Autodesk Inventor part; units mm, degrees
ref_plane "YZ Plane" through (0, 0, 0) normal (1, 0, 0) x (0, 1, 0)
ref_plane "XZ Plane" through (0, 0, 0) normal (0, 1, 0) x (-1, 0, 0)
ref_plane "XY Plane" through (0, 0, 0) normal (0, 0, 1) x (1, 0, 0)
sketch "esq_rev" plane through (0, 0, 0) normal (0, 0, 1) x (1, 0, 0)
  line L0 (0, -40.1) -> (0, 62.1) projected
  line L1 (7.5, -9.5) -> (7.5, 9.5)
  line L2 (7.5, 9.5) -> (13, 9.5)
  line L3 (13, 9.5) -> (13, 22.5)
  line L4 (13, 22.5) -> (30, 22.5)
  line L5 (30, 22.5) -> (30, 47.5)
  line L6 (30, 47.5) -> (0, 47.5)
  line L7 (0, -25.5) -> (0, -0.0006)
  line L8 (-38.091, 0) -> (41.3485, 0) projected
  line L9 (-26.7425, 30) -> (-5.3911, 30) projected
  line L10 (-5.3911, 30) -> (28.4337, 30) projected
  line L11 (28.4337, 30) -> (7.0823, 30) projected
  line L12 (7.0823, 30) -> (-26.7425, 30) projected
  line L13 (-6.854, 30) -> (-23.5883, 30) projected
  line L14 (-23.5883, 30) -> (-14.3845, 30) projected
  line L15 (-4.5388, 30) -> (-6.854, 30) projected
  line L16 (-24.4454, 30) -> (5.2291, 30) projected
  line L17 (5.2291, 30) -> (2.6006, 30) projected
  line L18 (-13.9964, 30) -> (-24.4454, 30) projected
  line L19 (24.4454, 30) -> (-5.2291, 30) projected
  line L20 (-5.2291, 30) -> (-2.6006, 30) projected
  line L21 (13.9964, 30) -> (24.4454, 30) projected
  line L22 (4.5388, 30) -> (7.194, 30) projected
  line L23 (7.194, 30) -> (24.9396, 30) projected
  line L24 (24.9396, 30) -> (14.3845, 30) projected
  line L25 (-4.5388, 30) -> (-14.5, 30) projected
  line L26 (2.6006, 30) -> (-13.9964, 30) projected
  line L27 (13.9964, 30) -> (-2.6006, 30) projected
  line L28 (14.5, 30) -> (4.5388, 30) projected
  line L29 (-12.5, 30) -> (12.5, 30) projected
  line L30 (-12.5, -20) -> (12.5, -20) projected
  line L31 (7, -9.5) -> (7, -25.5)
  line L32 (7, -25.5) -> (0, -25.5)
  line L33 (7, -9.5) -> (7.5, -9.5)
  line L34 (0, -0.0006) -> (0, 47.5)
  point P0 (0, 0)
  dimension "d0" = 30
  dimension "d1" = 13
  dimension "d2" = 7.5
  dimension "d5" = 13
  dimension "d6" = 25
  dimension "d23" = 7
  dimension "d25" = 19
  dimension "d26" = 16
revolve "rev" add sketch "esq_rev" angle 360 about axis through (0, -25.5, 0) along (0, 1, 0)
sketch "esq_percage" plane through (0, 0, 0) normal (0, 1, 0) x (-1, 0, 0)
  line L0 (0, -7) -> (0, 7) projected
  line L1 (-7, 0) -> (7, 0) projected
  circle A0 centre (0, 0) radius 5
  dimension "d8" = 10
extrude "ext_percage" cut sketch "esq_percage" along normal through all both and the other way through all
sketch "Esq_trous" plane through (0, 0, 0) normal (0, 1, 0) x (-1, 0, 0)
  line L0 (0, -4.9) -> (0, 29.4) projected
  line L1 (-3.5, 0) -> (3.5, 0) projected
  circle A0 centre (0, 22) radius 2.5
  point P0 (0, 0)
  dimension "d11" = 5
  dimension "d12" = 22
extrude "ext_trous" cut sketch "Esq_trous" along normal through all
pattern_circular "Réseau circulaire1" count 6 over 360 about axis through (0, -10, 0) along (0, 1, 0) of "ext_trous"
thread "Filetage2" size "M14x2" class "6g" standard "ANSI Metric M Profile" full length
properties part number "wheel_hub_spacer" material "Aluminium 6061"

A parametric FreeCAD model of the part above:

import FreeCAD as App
import Part
import Sketcher

doc = App.newDocument("Part")
body = doc.addObject("PartDesign::Body", "Body")

# Sketch on XY plane
sketch1 = body.newObject("Sketcher::SketchObject", "Sketch")
sketch1.AttachmentSupport = (doc.getObject("XY_Plane"), [""])
sketch1.MapMode = "FlatFace"
sketch1.addGeometry([
    Part.LineSegment(App.Vector(0, -25.5, 0), App.Vector(7, -25.5, 0)),  # 0
    Part.LineSegment(App.Vector(7, -25.5, 0), App.Vector(7, -9.5, 0)),  # 1
    Part.LineSegment(App.Vector(7, -9.5, 0), App.Vector(7.5, -9.5, 0)),  # 2
    Part.LineSegment(App.Vector(7.5, -9.5, 0), App.Vector(7.5, 9.5, 0)),  # 3
    Part.LineSegment(App.Vector(7.5, 9.5, 0), App.Vector(13, 9.5, 0)),  # 4
    Part.LineSegment(App.Vector(13, 9.5, 0), App.Vector(13, 22.5, 0)),  # 5
    Part.LineSegment(App.Vector(13, 22.5, 0), App.Vector(30, 22.5, 0)),  # 6
    Part.LineSegment(App.Vector(30, 22.5, 0), App.Vector(30, 47.5, 0)),  # 7
    Part.LineSegment(App.Vector(30, 47.5, 0), App.Vector(0, 47.5, 0)),  # 8
    Part.LineSegment(App.Vector(0, 47.5, 0), App.Vector(0, -25.5, 0)),  # 9
], False)
sketch1.addConstraint([
    Sketcher.Constraint("Coincident", 0, 2, 1, 1),
    Sketcher.Constraint("Coincident", 1, 2, 2, 1),
    Sketcher.Constraint("Coincident", 2, 2, 3, 1),
    Sketcher.Constraint("Coincident", 3, 2, 4, 1),
    Sketcher.Constraint("Coincident", 4, 2, 5, 1),
    Sketcher.Constraint("Coincident", 5, 2, 6, 1),
    Sketcher.Constraint("Coincident", 6, 2, 7, 1),
    Sketcher.Constraint("Coincident", 7, 2, 8, 1),
    Sketcher.Constraint("Coincident", 8, 2, 9, 1),
    Sketcher.Constraint("Coincident", 9, 2, 0, 1),
    Sketcher.Constraint("Horizontal", 0),
    Sketcher.Constraint("Vertical", 1),
    Sketcher.Constraint("Horizontal", 2),
    Sketcher.Constraint("Vertical", 3),
    Sketcher.Constraint("Horizontal", 4),
    Sketcher.Constraint("Vertical", 5),
    Sketcher.Constraint("Horizontal", 6),
    Sketcher.Constraint("Vertical", 7),
    Sketcher.Constraint("Horizontal", 8),
    Sketcher.Constraint("Vertical", 9),
    Sketcher.Constraint("PointOnObject", 8, 2, -2),
    Sketcher.Constraint("DistanceX", 0, 1, 0, 2, 7.0),
    Sketcher.Constraint("DistanceX", 8, 2, 8, 1, 30.0),
    Sketcher.Constraint("DistanceY", 1, 1, 1, 2, 16.0),
    Sketcher.Constraint("DistanceY", 3, 1, 3, 2, 19.0),
    Sketcher.Constraint("DistanceY", 5, 1, 5, 2, 13.0),
    Sketcher.Constraint("DistanceY", 7, 1, 7, 2, 25.0),
    Sketcher.Constraint("DistanceX", -1, 1, 4, 2, 13.0),
    Sketcher.Constraint("DistanceX", -1, 1, 2, 2, 7.5),
    Sketcher.Constraint("DistanceY", 0, 2, -1, 1, 25.5),
])
revolution = body.newObject("PartDesign::Revolution", "Revolution")
revolution.Profile = sketch1
revolution.ReferenceAxis = (sketch1, ["V_Axis"])
revolution.Angle = 360

# Sketch on XZ plane
sketch2 = body.newObject("Sketcher::SketchObject", "Sketch001")
sketch2.AttachmentSupport = (doc.getObject("XZ_Plane"), [""])
sketch2.MapMode = "FlatFace"
sketch2.addGeometry(Part.Circle(App.Vector(0, 0, 0), App.Vector(0, 0, 1), 5), False)
sketch2.addConstraint([
    Sketcher.Constraint("Coincident", 0, 3, -1, 1),
    Sketcher.Constraint("Diameter", 0, 10.0),
])
pocket1 = body.newObject("PartDesign::Pocket", "Pocket")
pocket1.Profile = sketch2
pocket1.Type = "ThroughAll"
pocket1.Midplane = True

# Sketch on XZ plane
sketch3 = body.newObject("Sketcher::SketchObject", "Sketch002")
sketch3.AttachmentSupport = (doc.getObject("XZ_Plane"), [""])
sketch3.MapMode = "FlatFace"
sketch3.addGeometry(Part.Circle(App.Vector(0, 22, 0), App.Vector(0, 0, 1), 2.5), False)
sketch3.addConstraint([
    Sketcher.Constraint("PointOnObject", 0, 3, -2),
    Sketcher.Constraint("Diameter", 0, 5.0),
    Sketcher.Constraint("DistanceY", -1, 1, 0, 3, 22.0),
])
pocket2 = body.newObject("PartDesign::Pocket", "Pocket001")
pocket2.Profile = sketch3
pocket2.Type = "ThroughAll"
doc.recompute()

polarpattern = body.newObject("PartDesign::PolarPattern", "PolarPattern")
polarpattern.Originals = [pocket2]
polarpattern.Axis = (doc.getObject("Y_Axis"), [""])
polarpattern.Angle = 360
polarpattern.Occurrences = 6
body.Tip = polarpattern

doc.recompute()
